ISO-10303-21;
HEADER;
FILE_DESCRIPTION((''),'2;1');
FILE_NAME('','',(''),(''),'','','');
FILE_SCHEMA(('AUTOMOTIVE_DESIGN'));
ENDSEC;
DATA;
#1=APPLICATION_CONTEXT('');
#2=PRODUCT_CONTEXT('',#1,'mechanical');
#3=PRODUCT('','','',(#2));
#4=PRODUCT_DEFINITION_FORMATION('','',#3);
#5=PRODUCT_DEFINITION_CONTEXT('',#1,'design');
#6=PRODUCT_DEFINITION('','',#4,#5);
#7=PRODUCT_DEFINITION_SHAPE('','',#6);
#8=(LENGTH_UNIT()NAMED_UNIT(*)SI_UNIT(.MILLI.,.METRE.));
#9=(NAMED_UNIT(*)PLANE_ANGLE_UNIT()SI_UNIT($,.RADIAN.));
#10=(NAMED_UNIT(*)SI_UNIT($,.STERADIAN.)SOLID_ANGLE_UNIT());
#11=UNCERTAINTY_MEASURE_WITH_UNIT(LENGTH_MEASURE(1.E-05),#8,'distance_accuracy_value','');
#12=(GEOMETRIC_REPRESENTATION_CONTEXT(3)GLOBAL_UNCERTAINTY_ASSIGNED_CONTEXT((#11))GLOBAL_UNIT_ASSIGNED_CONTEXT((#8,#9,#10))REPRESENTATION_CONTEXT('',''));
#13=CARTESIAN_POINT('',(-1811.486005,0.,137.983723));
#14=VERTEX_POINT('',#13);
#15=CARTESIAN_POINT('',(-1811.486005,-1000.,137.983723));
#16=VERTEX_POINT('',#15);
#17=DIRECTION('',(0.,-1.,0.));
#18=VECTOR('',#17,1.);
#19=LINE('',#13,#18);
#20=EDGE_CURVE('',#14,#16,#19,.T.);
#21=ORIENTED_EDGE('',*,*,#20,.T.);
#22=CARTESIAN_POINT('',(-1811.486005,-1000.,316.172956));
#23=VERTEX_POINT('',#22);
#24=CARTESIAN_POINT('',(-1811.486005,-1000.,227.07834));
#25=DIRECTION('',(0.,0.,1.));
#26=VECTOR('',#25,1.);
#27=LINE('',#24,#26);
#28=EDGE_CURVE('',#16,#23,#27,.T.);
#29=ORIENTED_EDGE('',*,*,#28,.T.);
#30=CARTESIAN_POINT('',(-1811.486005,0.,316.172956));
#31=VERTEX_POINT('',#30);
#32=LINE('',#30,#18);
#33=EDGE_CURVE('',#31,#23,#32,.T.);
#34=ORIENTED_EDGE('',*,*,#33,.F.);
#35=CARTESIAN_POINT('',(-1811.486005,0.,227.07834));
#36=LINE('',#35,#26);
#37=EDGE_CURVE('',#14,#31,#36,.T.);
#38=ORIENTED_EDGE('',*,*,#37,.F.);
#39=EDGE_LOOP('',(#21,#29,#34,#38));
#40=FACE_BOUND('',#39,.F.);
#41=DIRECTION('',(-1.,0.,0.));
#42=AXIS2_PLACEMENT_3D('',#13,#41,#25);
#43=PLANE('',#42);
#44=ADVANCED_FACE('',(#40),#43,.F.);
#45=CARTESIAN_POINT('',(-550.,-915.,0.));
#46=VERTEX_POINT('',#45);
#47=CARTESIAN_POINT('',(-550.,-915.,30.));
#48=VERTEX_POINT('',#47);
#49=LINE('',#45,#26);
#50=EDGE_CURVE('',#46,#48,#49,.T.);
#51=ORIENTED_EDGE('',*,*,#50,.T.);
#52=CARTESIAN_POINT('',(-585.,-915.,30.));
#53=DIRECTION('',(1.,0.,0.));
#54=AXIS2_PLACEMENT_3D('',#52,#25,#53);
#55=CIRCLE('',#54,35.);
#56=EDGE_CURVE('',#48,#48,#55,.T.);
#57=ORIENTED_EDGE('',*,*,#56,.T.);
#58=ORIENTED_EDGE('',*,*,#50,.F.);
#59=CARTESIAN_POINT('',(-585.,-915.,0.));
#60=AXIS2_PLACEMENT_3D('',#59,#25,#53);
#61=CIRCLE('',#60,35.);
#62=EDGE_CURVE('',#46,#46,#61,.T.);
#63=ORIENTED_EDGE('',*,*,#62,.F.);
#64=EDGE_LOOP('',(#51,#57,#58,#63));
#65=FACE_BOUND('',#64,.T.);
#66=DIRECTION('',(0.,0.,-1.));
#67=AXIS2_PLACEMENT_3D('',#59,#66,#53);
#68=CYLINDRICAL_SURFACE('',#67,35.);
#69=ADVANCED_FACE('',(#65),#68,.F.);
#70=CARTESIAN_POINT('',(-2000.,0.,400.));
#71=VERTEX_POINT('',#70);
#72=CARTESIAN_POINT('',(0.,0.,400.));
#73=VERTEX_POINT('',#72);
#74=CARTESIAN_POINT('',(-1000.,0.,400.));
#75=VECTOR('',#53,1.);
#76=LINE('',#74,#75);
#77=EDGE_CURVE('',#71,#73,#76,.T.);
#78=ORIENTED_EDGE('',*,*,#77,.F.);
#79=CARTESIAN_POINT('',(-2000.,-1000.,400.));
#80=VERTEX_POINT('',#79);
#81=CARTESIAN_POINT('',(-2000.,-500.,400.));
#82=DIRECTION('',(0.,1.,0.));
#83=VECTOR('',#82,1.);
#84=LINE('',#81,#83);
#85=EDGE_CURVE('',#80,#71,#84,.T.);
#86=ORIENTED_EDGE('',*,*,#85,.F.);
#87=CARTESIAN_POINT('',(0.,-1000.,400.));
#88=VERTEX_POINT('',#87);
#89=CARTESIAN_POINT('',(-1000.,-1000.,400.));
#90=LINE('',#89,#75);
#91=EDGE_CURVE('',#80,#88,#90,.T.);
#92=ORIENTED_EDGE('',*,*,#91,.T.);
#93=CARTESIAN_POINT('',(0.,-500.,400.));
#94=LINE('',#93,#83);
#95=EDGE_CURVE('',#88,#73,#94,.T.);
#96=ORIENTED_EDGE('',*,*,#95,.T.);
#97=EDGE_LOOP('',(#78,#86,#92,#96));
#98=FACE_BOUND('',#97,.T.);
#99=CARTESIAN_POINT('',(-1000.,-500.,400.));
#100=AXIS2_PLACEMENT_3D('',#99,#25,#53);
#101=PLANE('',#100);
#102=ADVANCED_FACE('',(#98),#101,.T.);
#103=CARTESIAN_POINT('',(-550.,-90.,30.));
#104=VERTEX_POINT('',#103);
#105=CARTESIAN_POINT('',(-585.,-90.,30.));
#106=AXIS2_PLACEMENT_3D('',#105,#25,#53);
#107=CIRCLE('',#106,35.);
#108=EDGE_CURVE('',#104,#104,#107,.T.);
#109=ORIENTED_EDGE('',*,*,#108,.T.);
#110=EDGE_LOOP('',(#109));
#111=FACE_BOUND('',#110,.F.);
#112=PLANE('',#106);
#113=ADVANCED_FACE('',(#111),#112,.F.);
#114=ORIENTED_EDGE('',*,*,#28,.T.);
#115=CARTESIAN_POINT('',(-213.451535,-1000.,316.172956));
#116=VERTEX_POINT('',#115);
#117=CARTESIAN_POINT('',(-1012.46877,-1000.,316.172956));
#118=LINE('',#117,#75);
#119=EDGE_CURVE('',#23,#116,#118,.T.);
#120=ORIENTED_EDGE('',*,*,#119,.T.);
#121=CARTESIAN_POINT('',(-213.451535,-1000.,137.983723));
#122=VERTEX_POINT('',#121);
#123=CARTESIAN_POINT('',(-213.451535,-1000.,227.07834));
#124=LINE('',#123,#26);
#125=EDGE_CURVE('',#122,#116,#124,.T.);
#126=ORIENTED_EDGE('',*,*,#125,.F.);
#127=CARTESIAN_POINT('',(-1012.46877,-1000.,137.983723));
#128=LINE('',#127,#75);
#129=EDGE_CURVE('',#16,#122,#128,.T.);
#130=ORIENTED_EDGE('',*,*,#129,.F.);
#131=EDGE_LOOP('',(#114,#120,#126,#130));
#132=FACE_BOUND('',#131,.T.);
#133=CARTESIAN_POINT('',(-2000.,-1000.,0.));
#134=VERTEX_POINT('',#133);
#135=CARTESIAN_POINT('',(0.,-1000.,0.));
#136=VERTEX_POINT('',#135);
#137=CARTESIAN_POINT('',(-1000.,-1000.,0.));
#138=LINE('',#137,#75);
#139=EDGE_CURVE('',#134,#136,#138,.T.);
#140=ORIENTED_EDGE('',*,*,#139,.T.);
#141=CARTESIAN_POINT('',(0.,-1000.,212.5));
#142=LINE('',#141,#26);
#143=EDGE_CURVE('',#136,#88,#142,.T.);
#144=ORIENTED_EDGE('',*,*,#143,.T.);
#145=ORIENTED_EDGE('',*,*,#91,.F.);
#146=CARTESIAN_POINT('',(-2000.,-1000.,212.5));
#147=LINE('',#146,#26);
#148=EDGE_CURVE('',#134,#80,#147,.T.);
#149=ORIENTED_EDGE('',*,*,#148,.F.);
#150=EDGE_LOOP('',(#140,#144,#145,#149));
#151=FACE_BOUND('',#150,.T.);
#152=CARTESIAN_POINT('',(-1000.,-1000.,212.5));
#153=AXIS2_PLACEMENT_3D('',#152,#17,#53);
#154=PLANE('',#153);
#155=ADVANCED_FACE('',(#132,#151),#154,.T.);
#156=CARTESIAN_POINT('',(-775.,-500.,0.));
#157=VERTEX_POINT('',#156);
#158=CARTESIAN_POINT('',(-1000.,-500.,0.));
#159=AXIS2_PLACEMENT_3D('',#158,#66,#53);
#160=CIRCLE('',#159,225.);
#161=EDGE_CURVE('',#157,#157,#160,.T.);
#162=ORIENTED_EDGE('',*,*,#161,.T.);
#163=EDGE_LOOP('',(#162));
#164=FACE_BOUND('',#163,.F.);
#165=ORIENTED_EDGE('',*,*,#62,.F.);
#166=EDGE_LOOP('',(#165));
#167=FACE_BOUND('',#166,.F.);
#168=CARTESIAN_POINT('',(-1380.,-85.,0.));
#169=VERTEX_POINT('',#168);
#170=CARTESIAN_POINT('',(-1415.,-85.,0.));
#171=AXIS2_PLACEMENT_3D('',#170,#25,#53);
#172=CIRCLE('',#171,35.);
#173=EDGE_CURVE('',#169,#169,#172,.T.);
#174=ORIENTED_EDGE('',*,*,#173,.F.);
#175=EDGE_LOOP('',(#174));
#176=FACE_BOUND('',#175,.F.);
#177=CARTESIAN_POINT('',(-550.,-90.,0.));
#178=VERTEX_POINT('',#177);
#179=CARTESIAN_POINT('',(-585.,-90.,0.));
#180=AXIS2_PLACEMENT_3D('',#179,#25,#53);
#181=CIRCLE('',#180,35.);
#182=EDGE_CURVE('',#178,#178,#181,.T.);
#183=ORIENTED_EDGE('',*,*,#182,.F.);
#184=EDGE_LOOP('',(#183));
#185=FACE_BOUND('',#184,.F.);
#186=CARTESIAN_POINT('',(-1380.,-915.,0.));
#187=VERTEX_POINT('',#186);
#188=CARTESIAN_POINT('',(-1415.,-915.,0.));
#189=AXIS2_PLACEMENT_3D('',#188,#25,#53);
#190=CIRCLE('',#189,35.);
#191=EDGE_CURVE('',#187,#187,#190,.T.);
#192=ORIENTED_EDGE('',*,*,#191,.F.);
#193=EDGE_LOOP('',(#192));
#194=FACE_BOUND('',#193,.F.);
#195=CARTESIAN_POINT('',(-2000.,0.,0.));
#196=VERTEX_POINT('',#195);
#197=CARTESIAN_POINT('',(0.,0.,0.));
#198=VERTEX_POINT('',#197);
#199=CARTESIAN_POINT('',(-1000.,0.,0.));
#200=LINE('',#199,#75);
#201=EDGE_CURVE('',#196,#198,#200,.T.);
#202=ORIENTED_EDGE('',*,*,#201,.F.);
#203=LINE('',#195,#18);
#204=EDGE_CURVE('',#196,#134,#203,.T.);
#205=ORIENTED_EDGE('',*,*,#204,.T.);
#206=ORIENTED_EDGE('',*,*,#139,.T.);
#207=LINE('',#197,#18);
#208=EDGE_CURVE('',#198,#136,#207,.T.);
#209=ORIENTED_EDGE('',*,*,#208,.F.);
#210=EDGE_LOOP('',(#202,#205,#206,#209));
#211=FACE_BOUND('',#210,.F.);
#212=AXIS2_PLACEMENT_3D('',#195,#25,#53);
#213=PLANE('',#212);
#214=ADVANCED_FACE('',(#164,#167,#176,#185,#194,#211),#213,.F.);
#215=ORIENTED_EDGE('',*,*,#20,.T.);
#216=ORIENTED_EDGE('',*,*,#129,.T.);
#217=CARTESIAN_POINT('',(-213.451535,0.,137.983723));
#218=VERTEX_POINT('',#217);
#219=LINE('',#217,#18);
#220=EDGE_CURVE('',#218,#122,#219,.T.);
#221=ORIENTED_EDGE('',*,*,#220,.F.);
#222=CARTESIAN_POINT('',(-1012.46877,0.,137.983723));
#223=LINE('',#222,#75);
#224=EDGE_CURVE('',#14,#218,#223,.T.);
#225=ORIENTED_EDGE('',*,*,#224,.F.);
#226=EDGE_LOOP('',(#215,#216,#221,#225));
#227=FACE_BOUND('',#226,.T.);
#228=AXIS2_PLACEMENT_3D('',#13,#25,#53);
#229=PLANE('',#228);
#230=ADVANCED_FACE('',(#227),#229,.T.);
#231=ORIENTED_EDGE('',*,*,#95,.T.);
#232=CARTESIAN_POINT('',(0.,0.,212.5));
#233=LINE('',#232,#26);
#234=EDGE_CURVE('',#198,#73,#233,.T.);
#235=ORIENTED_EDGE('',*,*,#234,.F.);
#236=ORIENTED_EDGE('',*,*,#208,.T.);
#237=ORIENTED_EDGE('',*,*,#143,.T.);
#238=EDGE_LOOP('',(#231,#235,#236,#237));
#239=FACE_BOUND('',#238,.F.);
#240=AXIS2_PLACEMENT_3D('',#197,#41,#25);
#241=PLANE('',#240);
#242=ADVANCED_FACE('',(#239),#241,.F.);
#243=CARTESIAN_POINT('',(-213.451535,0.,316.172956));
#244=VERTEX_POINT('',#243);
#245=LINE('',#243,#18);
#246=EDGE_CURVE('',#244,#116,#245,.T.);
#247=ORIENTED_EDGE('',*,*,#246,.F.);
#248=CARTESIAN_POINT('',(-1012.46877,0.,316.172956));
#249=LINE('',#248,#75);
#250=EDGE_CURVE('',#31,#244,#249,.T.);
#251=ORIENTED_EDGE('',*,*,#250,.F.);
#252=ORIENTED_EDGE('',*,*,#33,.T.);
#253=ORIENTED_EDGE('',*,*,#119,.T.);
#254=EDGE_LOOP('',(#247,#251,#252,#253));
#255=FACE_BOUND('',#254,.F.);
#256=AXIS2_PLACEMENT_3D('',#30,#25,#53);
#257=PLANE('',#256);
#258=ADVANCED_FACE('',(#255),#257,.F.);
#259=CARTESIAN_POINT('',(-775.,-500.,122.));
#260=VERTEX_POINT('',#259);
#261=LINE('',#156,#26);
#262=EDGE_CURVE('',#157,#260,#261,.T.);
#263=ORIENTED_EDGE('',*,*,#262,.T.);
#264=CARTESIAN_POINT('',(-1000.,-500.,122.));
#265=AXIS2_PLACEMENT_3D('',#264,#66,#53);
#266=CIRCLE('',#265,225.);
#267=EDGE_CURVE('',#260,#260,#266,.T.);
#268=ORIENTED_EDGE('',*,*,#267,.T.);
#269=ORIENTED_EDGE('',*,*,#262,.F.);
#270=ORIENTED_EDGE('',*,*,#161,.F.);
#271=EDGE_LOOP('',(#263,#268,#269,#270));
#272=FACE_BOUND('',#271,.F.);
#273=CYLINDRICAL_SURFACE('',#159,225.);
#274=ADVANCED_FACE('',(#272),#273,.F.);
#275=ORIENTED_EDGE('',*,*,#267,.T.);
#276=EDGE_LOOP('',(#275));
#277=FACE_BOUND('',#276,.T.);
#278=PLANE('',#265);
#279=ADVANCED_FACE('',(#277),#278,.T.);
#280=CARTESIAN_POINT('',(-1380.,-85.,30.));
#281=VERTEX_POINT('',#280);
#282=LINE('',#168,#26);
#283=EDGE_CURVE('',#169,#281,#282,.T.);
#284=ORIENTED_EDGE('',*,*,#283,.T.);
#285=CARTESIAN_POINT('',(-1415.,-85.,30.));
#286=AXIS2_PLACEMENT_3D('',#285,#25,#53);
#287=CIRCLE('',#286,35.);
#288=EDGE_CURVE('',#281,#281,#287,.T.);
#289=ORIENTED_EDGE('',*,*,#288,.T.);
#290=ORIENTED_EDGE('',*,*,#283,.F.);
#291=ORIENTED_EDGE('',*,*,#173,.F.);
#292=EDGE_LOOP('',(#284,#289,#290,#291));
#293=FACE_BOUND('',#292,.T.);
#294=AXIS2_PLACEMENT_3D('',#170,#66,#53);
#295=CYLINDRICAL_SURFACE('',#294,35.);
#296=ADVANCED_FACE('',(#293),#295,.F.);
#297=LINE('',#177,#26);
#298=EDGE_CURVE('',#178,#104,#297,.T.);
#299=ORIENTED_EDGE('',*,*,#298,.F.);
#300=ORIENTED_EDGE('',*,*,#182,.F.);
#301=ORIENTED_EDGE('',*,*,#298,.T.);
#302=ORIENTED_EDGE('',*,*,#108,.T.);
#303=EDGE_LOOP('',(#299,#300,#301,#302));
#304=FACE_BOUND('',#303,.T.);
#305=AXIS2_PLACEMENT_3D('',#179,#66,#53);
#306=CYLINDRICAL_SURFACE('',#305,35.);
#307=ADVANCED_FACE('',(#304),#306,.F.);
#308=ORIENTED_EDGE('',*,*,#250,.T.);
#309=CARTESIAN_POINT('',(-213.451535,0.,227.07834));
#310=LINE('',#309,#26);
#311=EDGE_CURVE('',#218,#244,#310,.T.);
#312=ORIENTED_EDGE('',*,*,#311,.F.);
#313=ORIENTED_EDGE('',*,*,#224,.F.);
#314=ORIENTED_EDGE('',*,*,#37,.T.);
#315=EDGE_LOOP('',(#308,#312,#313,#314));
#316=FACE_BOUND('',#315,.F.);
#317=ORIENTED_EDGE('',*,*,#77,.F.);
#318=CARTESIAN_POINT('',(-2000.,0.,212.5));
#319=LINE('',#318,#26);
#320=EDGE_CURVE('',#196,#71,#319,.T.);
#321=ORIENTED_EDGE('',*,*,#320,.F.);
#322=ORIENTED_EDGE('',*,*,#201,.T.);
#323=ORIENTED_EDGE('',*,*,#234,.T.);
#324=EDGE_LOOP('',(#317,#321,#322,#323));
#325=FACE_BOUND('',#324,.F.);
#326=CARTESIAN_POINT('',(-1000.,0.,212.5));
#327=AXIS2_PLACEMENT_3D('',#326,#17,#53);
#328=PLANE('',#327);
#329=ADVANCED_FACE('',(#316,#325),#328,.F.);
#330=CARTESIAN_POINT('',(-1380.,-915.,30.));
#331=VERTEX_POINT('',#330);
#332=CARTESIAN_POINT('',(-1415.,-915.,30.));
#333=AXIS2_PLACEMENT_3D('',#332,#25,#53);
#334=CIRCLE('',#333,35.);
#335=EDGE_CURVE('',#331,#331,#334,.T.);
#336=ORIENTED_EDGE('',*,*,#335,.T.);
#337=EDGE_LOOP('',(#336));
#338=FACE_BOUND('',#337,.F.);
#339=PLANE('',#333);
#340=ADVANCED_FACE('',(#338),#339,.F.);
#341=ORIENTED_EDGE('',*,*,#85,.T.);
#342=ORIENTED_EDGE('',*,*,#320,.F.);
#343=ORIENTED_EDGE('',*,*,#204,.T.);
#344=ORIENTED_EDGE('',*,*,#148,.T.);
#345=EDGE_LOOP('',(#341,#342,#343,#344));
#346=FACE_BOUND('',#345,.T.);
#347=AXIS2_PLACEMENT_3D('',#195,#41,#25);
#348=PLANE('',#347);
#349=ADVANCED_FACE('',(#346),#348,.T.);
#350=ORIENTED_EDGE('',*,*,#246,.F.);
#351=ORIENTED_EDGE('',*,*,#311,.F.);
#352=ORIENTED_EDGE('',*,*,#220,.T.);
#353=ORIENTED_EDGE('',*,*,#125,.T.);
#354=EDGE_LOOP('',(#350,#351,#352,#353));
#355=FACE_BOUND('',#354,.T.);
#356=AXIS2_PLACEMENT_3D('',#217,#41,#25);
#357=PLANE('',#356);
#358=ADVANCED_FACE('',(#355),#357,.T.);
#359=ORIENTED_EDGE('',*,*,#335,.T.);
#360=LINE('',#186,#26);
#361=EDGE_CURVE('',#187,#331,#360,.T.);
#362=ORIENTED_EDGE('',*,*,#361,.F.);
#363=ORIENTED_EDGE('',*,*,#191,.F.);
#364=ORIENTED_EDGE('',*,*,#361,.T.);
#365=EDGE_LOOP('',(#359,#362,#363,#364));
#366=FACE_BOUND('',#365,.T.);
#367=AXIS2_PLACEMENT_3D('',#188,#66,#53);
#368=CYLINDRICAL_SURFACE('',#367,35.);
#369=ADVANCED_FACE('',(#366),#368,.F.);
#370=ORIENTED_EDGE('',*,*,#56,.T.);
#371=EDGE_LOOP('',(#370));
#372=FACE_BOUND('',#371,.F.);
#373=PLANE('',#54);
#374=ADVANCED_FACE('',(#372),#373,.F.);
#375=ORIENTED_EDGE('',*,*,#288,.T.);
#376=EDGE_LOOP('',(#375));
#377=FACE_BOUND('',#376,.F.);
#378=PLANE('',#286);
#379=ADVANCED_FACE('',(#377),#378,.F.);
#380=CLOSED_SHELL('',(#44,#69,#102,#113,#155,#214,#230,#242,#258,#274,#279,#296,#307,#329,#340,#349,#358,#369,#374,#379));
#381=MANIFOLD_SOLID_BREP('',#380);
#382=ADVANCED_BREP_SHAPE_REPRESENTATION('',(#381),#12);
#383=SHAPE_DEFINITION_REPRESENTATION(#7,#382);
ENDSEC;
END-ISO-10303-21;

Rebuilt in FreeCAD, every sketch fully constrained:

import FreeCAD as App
import Part
import Sketcher

V = App.Vector
Q = App.Units.Quantity


def add_polygon(sketch, points):
    """Adds a closed chain of lines whose ends are joined by coincident constraints."""
    first, n = sketch.GeometryCount, len(points)
    for a, b in zip(points, points[1:] + points[:1]):
        sketch.addGeometry(Part.LineSegment(App.Vector(*a, 0), App.Vector(*b, 0)), False)
    for i in range(n):
        sketch.addConstraint(Sketcher.Constraint("Coincident", first + i, 2, first + (i + 1) % n, 1))

doc = App.newDocument("Part")
body = doc.addObject("PartDesign::Body", "Body")

sketch1 = body.newObject("Sketcher::SketchObject", "Sketch")
sketch1.AttachmentSupport = (doc.getObject("XZ_Plane"), [""])
sketch1.MapMode = "FlatFace"
add_polygon(sketch1, [(-2000, 425), (-2000, 0), (0, 0), (0, 425)])
add_polygon(sketch1, [(-213.451535, 137.983723), (-1811.486005, 137.983723), (-1811.486005, 316.172956), (-213.451535, 316.172956)])
sketch1.addConstraint([
    Sketcher.Constraint("Vertical", 0),
    Sketcher.Constraint("Horizontal", 1),
    Sketcher.Constraint("Vertical", 2),
    Sketcher.Constraint("Horizontal", 3),
    Sketcher.Constraint("Horizontal", 4),
    Sketcher.Constraint("Vertical", 5),
    Sketcher.Constraint("Horizontal", 6),
    Sketcher.Constraint("Vertical", 7),
    Sketcher.Constraint("Coincident", 1, 2, -1, 1),
    Sketcher.Constraint("DistanceX", 1, 1, 1, 2, Q("2000 mm")),
    Sketcher.Constraint("DistanceY", 0, 2, 0, 1, Q("425 mm")),
    Sketcher.Constraint("DistanceX", 4, 2, 4, 1, Q("1598.034471 mm")),
    Sketcher.Constraint("DistanceY", 5, 1, 5, 2, Q("178.189233 mm")),
    Sketcher.Constraint("DistanceX", 4, 2, -1, 1, Q("1811.486005 mm")),
    Sketcher.Constraint("DistanceY", -1, 1, 4, 2, Q("137.983723 mm")),
])
pad1 = body.newObject("PartDesign::Pad", "Pad")
pad1.Profile = sketch1
pad1.Length = 1000

sketch2 = body.newObject("Sketcher::SketchObject", "Sketch001")
sketch2.AttachmentSupport = (doc.getObject("XY_Plane"), [""])
sketch2.MapMode = "FlatFace"
sketch2.AttachmentOffset = App.Placement(V(0, 0, 425), App.Rotation())
add_polygon(sketch2, [(-2000, 0), (-2000, -1000), (0, -1000), (0, 0)])
sketch2.addConstraint([
    Sketcher.Constraint("Vertical", 0),
    Sketcher.Constraint("Horizontal", 1),
    Sketcher.Constraint("Vertical", 2),
    Sketcher.Constraint("Horizontal", 3),
    Sketcher.Constraint("Coincident", 2, 2, -1, 1),
    Sketcher.Constraint("DistanceX", 1, 1, 1, 2, Q("2000 mm")),
    Sketcher.Constraint("DistanceY", 0, 2, 0, 1, Q("1000 mm")),
])
pocket1 = body.newObject("PartDesign::Pocket", "Pocket")
pocket1.Profile = sketch2
pocket1.Length = 25

sketch3 = body.newObject("Sketcher::SketchObject", "Sketch002")
sketch3.AttachmentSupport = (doc.getObject("XY_Plane"), [""])
sketch3.MapMode = "FlatFace"
sketch3.addGeometry([
    Part.Circle(V(-1415, -85, 0), V(0, 0, 1), 35),
    Part.Circle(V(-1415, -915, 0), V(0, 0, 1), 35),
    Part.Circle(V(-585, -915, 0), V(0, 0, 1), 35),
    Part.Circle(V(-585, -90, 0), V(0, 0, 1), 35),
], False)
sketch3.addConstraint([
    Sketcher.Constraint("Equal", 0, 1),
    Sketcher.Constraint("Equal", 1, 2),
    Sketcher.Constraint("Equal", 2, 3),
    Sketcher.Constraint("Horizontal", 1, 3, 2, 3),
    Sketcher.Constraint("Vertical", 0, 3, 1, 3),
    Sketcher.Constraint("Vertical", 2, 3, 3, 3),
    Sketcher.Constraint("Diameter", 0, Q("70 mm")),
    Sketcher.Constraint("DistanceX", 0, 3, -1, 1, Q("1415 mm")),
    Sketcher.Constraint("DistanceY", 0, 3, -1, 1, Q("85 mm")),
    Sketcher.Constraint("DistanceY", 1, 3, -1, 1, Q("915 mm")),
    Sketcher.Constraint("DistanceX", 2, 3, -1, 1, Q("585 mm")),
    Sketcher.Constraint("DistanceY", 3, 3, -1, 1, Q("90 mm")),
])
pocket2 = body.newObject("PartDesign::Pocket", "Pocket001")
pocket2.Profile = sketch3
pocket2.Length = 30
pocket2.Reversed = True

sketch4 = body.newObject("Sketcher::SketchObject", "Sketch003")
sketch4.AttachmentSupport = (doc.getObject("XY_Plane"), [""])
sketch4.MapMode = "FlatFace"
sketch4.addGeometry(Part.Circle(V(-1000, -500, 0), V(0, 0, 1), 225), False)
sketch4.addConstraint([
    Sketcher.Constraint("Diameter", 0, Q("450 mm")),
    Sketcher.Constraint("DistanceX", 0, 3, -1, 1, Q("1000 mm")),
    Sketcher.Constraint("DistanceY", 0, 3, -1, 1, Q("500 mm")),
])
pocket3 = body.newObject("PartDesign::Pocket", "Pocket002")
pocket3.Profile = sketch4
pocket3.Length = 122
pocket3.Reversed = True

doc.recompute()
